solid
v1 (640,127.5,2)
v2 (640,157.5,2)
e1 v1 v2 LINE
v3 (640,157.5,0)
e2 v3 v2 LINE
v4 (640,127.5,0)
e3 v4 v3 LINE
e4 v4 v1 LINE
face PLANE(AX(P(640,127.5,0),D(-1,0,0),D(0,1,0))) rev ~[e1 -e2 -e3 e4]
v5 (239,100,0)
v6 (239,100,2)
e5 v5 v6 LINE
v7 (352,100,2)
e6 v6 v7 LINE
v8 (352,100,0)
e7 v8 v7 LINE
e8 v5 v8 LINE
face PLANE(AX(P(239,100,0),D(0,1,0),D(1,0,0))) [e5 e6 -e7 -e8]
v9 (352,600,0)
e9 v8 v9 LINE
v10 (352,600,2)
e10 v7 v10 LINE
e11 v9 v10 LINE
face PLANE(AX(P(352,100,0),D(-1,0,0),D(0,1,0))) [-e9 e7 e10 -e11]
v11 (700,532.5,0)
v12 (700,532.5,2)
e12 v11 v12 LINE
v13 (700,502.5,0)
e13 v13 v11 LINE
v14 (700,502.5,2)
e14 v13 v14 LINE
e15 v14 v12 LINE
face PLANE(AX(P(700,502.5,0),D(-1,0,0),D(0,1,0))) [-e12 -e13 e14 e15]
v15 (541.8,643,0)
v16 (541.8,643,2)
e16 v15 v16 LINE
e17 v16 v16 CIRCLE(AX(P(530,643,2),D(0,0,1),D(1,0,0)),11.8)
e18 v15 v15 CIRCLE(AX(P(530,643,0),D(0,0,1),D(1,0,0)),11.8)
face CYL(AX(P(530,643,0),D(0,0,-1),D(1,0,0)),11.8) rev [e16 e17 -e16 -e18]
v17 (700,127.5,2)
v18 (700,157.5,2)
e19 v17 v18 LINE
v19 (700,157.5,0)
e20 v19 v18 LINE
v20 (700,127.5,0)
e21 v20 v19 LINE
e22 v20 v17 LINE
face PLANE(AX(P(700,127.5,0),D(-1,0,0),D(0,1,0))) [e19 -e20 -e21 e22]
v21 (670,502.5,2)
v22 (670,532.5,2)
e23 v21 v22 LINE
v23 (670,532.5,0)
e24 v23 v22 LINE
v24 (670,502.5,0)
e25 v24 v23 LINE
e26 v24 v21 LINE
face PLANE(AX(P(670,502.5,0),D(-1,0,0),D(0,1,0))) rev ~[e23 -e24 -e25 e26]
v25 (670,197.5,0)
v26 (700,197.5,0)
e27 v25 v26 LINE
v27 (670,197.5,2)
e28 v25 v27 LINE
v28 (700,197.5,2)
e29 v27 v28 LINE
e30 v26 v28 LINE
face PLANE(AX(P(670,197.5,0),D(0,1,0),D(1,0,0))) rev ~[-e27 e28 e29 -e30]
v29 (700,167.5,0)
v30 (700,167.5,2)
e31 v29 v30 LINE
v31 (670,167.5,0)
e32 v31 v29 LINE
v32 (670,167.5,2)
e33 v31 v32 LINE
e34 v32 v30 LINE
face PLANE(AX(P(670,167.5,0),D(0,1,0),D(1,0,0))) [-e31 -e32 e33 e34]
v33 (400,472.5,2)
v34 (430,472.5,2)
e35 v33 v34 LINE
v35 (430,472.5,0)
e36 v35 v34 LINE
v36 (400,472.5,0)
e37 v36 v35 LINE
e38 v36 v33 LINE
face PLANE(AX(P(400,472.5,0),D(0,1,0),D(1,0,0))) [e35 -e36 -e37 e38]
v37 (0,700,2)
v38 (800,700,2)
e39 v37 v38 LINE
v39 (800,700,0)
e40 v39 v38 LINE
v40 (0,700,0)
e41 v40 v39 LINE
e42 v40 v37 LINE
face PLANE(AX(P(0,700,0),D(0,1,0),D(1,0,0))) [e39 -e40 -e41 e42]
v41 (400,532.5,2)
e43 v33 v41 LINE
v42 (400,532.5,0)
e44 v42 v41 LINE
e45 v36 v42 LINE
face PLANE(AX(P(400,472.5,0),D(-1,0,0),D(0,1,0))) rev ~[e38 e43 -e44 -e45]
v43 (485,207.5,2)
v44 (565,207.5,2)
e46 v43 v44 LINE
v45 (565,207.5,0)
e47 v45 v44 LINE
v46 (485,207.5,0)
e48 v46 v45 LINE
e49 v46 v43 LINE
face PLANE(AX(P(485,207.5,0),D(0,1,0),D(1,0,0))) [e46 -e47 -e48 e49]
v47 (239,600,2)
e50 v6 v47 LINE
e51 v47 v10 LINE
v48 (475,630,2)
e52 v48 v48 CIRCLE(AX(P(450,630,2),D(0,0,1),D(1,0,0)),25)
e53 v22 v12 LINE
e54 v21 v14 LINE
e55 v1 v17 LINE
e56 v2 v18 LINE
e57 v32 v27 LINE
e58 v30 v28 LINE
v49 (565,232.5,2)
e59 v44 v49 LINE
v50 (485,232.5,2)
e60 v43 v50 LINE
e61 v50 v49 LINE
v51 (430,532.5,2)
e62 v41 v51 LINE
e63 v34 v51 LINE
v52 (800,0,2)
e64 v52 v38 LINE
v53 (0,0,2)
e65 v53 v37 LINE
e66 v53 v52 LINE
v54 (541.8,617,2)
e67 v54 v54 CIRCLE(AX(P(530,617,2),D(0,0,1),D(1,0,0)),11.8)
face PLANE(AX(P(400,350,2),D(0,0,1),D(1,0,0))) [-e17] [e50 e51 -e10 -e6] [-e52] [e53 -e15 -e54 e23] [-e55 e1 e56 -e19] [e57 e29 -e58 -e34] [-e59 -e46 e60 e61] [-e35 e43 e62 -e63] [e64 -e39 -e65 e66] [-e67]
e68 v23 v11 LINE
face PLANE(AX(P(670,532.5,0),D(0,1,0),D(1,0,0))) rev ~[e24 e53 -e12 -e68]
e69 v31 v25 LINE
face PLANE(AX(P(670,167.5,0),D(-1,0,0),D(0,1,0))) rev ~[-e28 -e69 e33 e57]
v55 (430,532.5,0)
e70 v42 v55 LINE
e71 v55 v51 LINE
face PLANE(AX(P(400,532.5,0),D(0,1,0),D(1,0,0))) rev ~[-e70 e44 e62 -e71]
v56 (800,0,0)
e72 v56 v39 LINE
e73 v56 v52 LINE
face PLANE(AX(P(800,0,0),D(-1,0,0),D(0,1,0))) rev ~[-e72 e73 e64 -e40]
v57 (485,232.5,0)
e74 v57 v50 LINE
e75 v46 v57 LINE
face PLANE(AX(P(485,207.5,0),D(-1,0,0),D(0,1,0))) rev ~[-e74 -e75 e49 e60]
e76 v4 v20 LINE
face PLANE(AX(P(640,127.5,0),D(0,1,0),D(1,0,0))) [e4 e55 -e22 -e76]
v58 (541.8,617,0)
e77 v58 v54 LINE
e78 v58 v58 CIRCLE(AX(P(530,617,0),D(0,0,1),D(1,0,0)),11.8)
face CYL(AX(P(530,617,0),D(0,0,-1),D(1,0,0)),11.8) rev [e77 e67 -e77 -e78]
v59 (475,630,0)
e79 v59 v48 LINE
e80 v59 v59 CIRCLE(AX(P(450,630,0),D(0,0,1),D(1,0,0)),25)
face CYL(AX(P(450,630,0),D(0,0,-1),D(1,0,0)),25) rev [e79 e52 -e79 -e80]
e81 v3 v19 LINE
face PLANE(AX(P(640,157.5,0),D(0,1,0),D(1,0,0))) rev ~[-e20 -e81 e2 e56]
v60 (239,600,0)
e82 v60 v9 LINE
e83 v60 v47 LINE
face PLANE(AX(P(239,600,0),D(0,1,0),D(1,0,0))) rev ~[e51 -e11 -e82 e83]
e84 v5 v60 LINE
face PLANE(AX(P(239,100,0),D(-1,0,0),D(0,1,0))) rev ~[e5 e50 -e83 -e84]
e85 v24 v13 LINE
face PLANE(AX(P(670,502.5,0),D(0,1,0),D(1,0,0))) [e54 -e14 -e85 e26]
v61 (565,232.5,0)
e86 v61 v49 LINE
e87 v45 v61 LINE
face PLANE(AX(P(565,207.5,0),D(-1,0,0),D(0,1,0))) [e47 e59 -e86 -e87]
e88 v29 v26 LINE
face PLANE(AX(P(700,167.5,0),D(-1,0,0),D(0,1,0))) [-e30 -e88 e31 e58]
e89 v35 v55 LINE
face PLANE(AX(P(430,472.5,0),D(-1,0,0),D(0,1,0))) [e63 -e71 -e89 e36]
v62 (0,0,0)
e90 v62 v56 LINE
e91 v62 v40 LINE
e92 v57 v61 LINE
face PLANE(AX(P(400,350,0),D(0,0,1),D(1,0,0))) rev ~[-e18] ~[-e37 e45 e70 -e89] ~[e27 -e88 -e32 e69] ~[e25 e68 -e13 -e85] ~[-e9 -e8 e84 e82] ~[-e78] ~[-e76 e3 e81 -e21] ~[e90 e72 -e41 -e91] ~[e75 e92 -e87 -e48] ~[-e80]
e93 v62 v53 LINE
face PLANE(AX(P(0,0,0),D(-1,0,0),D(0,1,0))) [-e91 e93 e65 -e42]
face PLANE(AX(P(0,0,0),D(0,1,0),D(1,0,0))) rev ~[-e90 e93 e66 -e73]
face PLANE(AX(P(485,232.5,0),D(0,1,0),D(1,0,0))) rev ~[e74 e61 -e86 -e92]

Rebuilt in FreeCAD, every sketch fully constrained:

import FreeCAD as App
import Part
import Sketcher
Q = App.Units.Quantity


def add_polygon(sketch, points):
    """Adds a closed chain of lines whose ends are joined by coincident constraints."""
    first, n = sketch.GeometryCount, len(points)
    for a, b in zip(points, points[1:] + points[:1]):
        sketch.addGeometry(Part.LineSegment(App.Vector(*a, 0), App.Vector(*b, 0)), False)
    for i in range(n):
        sketch.addConstraint(Sketcher.Constraint("Coincident", first + i, 2, first + (i + 1) % n, 1))

doc = App.newDocument("Part")
body = doc.addObject("PartDesign::Body", "Body")

# Sketch on XY plane
sketch1 = body.newObject("Sketcher::SketchObject", "Sketch")
sketch1.AttachmentSupport = (doc.getObject("XY_Plane"), [""])
sketch1.MapMode = "FlatFace"
add_polygon(sketch1, [(0, 700), (0, 0), (800, 0), (800, 700)])  # lines 0-3
add_polygon(sketch1, [(352, 100), (239, 100), (239, 600), (352, 600)])  # lines 4-7
add_polygon(sketch1, [(565, 208), (485, 208), (485, 232), (565, 232)])  # lines 8-11
add_polygon(sketch1, [(700, 128), (640, 128), (640, 158), (700, 158)])  # lines 12-15
add_polygon(sketch1, [(700, 168), (670, 168), (670, 198), (700, 198)])  # lines 16-19
add_polygon(sketch1, [(430, 472), (400, 472), (400, 532), (430, 532)])  # lines 20-23
sketch1.addGeometry(Part.Circle(App.Vector(450, 630, 0), App.Vector(0, 0, 1), 25), False)  # 24
sketch1.addGeometry(Part.Circle(App.Vector(530, 617, 0), App.Vector(0, 0, 1), 12), False)  # 25
sketch1.addGeometry(Part.Circle(App.Vector(530, 643, 0), App.Vector(0, 0, 1), 12), False)  # 26
add_polygon(sketch1, [(700, 502), (670, 502), (670, 532), (700, 532)])  # lines 27-30
sketch1.addConstraint([
    Sketcher.Constraint("Vertical", 0),
    Sketcher.Constraint("Horizontal", 1),
    Sketcher.Constraint("Vertical", 2),
    Sketcher.Constraint("Horizontal", 3),
    Sketcher.Constraint("Horizontal", 4),
    Sketcher.Constraint("Vertical", 5),
    Sketcher.Constraint("Horizontal", 6),
    Sketcher.Constraint("Vertical", 7),
    Sketcher.Constraint("Horizontal", 8),
    Sketcher.Constraint("Vertical", 9),
    Sketcher.Constraint("Horizontal", 10),
    Sketcher.Constraint("Vertical", 11),
    Sketcher.Constraint("Horizontal", 12),
    Sketcher.Constraint("Vertical", 13),
    Sketcher.Constraint("Horizontal", 14),
    Sketcher.Constraint("Vertical", 15),
    Sketcher.Constraint("Horizontal", 16),
    Sketcher.Constraint("Vertical", 17),
    Sketcher.Constraint("Horizontal", 18),
    Sketcher.Constraint("Vertical", 19),
    Sketcher.Constraint("Horizontal", 20),
    Sketcher.Constraint("Vertical", 21),
    Sketcher.Constraint("Horizontal", 22),
    Sketcher.Constraint("Vertical", 23),
    Sketcher.Constraint("Horizontal", 27),
    Sketcher.Constraint("Vertical", 28),
    Sketcher.Constraint("Horizontal", 29),
    Sketcher.Constraint("Vertical", 30),
    Sketcher.Constraint("Coincident", 0, 2, -1, 1),
    Sketcher.Constraint("Equal", 25, 26),
    Sketcher.Constraint("Horizontal", 22, 2, 28, 2),
    Sketcher.Constraint("Vertical", 25, 3, 26, 3),
    Sketcher.Constraint("Vertical", 15, 2, 18, 2),
    Sketcher.Constraint("Vertical", 17, 2, 27, 2),
    Sketcher.Constraint("Vertical", 19, 2, 29, 2),
    Sketcher.Constraint("Equal", 18, 20),
    Sketcher.Constraint("Equal", 29, 13),
    Sketcher.Constraint("Equal", 15, 17),
    Sketcher.Constraint("Equal", 14, 21),
    Sketcher.Constraint("Equal", 19, 28),
    Sketcher.Constraint("Diameter", 24, Q("50 mm")),
    Sketcher.Constraint("Diameter", 25, Q("23.6 mm")),
    Sketcher.Constraint("DistanceX", 1, 1, 1, 2, Q("800 mm")),
    Sketcher.Constraint("DistanceX", 4, 2, 4, 1, Q("113 mm")),
    Sketcher.Constraint("DistanceX", 8, 2, 8, 1, Q("80 mm")),
    Sketcher.Constraint("DistanceX", 12, 2, 12, 1, Q("60 mm")),
    Sketcher.Constraint("DistanceX", 16, 2, 16, 1, Q("30 mm")),
    Sketcher.Constraint("DistanceY", 0, 2, 0, 1, Q("700 mm")),
    Sketcher.Constraint("DistanceY", 5, 1, 5, 2, Q("500 mm")),
    Sketcher.Constraint("DistanceY", 9, 1, 9, 2, Q("25 mm")),
    Sketcher.Constraint("DistanceX", -1, 1, 24, 3, Q("450 mm")),
    Sketcher.Constraint("DistanceY", -1, 1, 24, 3, Q("630 mm")),
    Sketcher.Constraint("DistanceX", -1, 1, 25, 3, Q("530 mm")),
    Sketcher.Constraint("DistanceY", -1, 1, 25, 3, Q("617 mm")),
    Sketcher.Constraint("DistanceY", -1, 1, 26, 3, Q("643 mm")),
    Sketcher.Constraint("DistanceX", -1, 1, 4, 2, Q("239 mm")),
    Sketcher.Constraint("DistanceY", -1, 1, 4, 2, Q("100 mm")),
    Sketcher.Constraint("DistanceX", -1, 1, 8, 2, Q("485 mm")),
    Sketcher.Constraint("DistanceX", -1, 1, 12, 2, Q("640 mm")),
    Sketcher.Constraint("DistanceX", -1, 1, 20, 2, Q("400 mm")),
    Sketcher.Constraint("DistanceY", 12, 2, 11, 2, Q("80 mm")),
    Sketcher.Constraint("DistanceY", 13, 2, 16, 2, Q("10 mm")),
    Sketcher.Constraint("DistanceY", -1, 1, 8, 2, Q("207.5 mm")),
    Sketcher.Constraint("DistanceY", -1, 1, 20, 2, Q("472.5 mm")),
])
pad1 = body.newObject("PartDesign::Pad", "Pad")
pad1.Profile = sketch1
pad1.Length = 2

doc.recompute()
